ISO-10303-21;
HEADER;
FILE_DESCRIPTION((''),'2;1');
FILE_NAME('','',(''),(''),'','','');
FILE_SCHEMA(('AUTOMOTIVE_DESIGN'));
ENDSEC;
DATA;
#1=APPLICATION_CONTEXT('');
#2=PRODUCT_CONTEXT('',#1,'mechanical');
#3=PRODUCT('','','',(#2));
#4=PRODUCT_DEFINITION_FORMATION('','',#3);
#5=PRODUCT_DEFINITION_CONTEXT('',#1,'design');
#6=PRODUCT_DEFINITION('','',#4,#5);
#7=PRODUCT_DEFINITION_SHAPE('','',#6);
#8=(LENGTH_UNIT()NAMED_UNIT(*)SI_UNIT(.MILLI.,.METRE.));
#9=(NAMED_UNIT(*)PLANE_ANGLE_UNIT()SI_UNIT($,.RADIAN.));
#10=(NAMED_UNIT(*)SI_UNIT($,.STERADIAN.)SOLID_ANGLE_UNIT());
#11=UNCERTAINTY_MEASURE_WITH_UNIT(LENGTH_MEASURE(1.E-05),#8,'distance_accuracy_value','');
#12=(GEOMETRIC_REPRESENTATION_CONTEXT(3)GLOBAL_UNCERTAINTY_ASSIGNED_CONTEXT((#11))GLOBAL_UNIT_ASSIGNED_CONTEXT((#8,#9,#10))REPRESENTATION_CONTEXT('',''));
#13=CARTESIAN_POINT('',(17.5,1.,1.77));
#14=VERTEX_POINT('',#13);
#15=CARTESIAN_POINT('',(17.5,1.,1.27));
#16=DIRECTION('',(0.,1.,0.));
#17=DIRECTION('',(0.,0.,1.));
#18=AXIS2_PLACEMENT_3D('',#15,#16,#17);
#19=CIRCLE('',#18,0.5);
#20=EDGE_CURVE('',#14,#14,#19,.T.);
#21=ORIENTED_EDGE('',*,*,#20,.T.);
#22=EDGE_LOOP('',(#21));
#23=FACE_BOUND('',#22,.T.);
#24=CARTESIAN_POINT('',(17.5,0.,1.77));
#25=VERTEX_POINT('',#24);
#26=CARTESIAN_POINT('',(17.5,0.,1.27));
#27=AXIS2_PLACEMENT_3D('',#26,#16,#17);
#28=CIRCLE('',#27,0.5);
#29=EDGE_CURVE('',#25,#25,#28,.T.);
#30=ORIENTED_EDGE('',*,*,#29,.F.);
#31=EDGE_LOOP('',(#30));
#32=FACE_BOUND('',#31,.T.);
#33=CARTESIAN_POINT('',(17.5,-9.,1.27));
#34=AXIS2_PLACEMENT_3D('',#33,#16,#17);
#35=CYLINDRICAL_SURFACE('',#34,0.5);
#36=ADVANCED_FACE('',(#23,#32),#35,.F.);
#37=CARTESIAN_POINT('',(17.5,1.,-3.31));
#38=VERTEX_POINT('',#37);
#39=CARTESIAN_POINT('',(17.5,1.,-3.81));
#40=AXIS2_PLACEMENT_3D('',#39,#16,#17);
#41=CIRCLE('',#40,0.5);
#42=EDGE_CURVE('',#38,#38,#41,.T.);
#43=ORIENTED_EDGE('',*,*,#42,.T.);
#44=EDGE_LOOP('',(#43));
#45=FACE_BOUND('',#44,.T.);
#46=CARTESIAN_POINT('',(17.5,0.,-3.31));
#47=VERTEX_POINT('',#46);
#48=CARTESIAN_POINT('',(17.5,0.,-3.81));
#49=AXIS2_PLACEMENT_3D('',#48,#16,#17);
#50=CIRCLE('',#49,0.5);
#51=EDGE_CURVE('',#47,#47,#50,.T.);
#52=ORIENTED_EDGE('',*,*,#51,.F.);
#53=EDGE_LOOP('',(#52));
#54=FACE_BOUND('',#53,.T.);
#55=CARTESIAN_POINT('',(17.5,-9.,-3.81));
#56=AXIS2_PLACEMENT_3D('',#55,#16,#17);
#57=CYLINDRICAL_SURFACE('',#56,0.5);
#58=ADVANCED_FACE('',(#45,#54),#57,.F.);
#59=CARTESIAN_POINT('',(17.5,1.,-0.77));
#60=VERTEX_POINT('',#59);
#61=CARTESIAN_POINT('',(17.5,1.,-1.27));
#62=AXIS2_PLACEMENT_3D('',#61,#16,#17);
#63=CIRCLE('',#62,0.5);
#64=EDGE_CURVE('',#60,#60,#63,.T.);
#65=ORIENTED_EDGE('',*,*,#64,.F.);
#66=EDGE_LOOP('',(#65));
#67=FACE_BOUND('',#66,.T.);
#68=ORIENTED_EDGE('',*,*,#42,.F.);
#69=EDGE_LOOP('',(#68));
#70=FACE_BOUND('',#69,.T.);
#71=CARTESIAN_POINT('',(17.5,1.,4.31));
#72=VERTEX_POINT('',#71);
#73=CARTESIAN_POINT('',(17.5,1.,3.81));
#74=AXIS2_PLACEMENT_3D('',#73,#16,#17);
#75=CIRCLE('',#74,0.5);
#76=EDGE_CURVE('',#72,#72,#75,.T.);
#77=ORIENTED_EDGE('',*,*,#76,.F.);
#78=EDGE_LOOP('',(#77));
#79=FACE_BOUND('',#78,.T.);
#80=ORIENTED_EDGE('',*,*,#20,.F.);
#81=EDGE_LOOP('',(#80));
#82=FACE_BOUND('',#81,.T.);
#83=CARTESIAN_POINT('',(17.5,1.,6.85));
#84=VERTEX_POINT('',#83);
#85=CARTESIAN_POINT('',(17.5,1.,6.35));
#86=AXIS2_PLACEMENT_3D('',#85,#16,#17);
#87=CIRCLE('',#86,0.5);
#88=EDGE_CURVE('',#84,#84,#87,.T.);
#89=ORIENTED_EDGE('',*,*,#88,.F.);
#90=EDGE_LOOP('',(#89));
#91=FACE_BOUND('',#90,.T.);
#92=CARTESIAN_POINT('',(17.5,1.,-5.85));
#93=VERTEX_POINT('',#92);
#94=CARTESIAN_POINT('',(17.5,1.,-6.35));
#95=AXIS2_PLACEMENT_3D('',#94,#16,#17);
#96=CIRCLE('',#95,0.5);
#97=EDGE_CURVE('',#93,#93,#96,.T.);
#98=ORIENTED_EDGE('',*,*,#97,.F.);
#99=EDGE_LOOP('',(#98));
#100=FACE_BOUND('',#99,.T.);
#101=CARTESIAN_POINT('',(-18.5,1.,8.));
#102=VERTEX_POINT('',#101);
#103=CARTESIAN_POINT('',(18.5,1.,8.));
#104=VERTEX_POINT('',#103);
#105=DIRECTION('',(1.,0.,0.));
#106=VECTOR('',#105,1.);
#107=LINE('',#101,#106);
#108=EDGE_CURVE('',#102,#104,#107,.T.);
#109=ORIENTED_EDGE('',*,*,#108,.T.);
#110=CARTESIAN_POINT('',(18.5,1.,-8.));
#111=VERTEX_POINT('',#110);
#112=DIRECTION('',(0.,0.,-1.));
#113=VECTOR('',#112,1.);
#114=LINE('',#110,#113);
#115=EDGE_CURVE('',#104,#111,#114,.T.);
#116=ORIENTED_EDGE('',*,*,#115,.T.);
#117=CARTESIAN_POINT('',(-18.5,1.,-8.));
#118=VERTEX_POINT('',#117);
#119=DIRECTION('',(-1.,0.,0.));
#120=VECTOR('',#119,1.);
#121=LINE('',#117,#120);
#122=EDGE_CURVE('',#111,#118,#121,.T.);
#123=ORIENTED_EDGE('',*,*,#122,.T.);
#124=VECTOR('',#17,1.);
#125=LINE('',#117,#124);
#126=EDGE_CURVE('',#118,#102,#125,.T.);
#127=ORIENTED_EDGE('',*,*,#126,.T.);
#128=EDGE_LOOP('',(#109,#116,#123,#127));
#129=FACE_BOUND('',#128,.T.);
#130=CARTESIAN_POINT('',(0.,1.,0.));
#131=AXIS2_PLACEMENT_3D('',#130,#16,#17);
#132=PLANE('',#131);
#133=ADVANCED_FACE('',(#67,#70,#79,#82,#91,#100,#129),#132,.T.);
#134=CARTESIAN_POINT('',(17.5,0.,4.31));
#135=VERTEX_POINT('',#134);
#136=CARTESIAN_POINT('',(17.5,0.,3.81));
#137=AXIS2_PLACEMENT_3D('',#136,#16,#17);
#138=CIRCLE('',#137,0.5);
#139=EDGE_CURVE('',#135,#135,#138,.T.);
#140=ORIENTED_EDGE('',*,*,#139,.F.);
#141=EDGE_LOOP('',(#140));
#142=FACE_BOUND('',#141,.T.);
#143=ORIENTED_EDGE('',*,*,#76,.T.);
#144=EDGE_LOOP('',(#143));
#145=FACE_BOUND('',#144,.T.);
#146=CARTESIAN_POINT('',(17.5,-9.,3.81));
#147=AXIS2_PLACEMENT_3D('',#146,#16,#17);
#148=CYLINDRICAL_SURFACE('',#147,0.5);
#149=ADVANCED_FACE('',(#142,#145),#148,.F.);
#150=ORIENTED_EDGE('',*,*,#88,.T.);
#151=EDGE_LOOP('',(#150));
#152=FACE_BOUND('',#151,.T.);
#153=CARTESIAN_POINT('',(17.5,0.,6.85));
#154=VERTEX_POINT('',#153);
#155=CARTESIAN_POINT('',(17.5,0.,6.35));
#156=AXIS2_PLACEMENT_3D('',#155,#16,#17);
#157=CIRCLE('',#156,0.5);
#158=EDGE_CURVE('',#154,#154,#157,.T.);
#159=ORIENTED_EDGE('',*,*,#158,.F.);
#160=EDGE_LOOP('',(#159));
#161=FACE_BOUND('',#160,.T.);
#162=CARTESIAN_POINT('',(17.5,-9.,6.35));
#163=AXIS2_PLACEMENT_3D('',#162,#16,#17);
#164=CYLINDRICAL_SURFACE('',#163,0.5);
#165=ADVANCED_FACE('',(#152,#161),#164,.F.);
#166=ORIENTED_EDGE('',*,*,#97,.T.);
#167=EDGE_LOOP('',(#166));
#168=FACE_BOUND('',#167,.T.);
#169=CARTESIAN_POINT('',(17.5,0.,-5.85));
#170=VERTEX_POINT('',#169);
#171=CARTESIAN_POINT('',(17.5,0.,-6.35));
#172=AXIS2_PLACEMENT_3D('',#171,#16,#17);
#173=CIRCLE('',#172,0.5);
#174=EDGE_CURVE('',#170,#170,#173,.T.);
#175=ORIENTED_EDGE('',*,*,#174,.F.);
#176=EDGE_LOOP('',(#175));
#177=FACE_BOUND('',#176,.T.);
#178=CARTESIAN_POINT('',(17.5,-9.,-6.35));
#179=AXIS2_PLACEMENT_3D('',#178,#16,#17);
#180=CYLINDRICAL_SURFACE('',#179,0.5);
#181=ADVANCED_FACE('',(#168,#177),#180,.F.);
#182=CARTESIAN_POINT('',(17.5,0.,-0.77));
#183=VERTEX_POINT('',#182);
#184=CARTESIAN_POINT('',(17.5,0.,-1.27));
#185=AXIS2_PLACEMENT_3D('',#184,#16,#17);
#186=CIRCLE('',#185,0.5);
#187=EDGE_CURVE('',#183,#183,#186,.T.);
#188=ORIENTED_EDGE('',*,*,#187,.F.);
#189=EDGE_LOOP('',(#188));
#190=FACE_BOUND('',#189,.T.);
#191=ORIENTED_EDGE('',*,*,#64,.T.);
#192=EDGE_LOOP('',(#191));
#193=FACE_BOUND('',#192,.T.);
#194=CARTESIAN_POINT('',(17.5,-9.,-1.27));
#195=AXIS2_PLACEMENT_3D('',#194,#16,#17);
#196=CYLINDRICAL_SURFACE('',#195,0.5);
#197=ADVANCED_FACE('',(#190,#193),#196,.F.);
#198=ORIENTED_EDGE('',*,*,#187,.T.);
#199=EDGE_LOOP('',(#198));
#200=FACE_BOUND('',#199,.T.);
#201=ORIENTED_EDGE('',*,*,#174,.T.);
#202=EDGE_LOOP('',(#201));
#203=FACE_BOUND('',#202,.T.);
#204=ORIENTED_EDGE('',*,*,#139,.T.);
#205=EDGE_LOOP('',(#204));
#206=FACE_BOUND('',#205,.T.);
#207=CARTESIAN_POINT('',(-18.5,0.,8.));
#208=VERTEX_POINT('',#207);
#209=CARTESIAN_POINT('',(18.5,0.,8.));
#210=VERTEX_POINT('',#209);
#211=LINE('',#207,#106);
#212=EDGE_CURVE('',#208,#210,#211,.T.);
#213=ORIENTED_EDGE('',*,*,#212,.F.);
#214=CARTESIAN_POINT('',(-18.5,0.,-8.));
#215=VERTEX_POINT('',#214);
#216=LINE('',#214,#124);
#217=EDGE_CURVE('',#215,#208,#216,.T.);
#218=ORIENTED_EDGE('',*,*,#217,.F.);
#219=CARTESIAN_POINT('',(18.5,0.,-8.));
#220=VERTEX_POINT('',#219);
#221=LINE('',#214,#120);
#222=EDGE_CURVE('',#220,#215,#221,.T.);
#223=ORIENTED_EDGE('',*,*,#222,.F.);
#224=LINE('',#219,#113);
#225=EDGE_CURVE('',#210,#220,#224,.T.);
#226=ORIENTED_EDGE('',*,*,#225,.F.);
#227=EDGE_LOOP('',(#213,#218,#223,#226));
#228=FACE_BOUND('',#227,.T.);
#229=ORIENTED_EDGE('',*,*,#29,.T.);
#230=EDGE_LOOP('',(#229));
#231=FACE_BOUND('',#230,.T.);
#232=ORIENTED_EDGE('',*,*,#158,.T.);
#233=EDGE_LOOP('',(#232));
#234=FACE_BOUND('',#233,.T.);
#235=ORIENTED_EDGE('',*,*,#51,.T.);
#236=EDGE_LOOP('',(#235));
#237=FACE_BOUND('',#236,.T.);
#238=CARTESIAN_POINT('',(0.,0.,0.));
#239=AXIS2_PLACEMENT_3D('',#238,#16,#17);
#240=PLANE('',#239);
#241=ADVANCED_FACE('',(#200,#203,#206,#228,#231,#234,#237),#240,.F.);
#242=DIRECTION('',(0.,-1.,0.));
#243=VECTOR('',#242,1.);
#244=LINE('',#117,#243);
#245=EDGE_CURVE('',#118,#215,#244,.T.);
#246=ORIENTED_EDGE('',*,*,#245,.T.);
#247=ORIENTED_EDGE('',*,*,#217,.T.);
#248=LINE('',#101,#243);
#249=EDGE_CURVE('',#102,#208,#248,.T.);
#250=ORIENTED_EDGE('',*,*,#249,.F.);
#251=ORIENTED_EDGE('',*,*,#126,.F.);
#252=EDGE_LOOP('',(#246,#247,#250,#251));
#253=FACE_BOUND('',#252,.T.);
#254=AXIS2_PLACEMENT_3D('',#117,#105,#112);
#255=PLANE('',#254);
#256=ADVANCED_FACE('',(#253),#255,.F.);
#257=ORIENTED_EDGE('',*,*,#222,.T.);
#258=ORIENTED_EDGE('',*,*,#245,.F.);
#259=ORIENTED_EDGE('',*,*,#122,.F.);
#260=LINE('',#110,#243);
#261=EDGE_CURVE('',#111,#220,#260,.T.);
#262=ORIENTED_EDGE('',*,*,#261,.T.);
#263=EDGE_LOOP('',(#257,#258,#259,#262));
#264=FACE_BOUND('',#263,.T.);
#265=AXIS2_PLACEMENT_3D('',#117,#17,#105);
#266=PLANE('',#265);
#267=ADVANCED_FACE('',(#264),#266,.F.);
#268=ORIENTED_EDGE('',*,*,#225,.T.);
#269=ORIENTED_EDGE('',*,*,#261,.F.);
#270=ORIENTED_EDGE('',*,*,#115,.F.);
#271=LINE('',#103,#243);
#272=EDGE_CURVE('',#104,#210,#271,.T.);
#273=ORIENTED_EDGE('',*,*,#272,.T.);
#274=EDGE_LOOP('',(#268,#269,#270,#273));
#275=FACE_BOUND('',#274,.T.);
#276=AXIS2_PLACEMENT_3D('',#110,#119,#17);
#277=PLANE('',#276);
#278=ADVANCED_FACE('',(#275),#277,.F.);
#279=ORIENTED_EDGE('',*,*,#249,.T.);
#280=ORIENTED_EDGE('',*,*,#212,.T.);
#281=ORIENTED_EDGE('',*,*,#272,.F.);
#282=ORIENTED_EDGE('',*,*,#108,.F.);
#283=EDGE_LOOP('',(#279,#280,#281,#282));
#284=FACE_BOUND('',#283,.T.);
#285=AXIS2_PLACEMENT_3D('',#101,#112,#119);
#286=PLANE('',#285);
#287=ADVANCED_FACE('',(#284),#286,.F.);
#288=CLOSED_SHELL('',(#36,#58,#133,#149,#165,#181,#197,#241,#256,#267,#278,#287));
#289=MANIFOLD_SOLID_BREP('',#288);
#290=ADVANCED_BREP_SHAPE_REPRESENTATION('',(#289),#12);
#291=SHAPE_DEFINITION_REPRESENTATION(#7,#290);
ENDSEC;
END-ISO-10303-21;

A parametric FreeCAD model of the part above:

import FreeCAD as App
import Part
import Sketcher
from FreeCAD import Vector
Q = App.Units.Quantity


def add_polygon(sketch, points):
    """Adds a closed chain of lines whose ends are joined by coincident constraints."""
    first, n = sketch.GeometryCount, len(points)
    for a, b in zip(points, points[1:] + points[:1]):
        sketch.addGeometry(Part.LineSegment(App.Vector(*a, 0), App.Vector(*b, 0)), False)
    for i in range(n):
        sketch.addConstraint(Sketcher.Constraint("Coincident", first + i, 2, first + (i + 1) % n, 1))

doc = App.newDocument("Part")
body = doc.addObject("PartDesign::Body", "Body")

# Sketch on XZ plane
sketch1 = body.newObject("Sketcher::SketchObject", "Sketch")
sketch1.AttachmentSupport = (doc.getObject("XZ_Plane"), [""])
sketch1.MapMode = "FlatFace"
add_polygon(sketch1, [(-18.5, -8), (-18.5, 8), (18.5, 8), (18.5, -8)])  # lines 0-3
sketch1.addConstraint([
    Sketcher.Constraint("Vertical", 0),
    Sketcher.Constraint("Horizontal", 1),
    Sketcher.Constraint("Vertical", 2),
    Sketcher.Constraint("Horizontal", 3),
    Sketcher.Constraint("Symmetric", 0, 2, 2, 2, -1, 1),
    Sketcher.Constraint("DistanceX", 1, 1, 1, 2, Q("37 mm")),
    Sketcher.Constraint("DistanceY", 0, 1, 0, 2, Q("16 mm")),
])
pad1 = body.newObject("PartDesign::Pad", "Pad")
pad1.Profile = sketch1
pad1.Length = 1
pad1.Reversed = True

# Sketch on XZ plane
sketch2 = body.newObject("Sketcher::SketchObject", "Sketch001")
sketch2.AttachmentSupport = (doc.getObject("XZ_Plane"), [""])
sketch2.MapMode = "FlatFace"
sketch2.AttachmentOffset = App.Placement(Vector(0, 0, -1), App.Rotation())
sketch2.addGeometry([
    Part.Circle(Vector(17.5, 6.35, 0), Vector(0, 0, 1), 0.5),  # 0
    Part.Circle(Vector(17.5, 3.81, 0), Vector(0, 0, 1), 0.5),  # 1
    Part.Circle(Vector(17.5, 1.27, 0), Vector(0, 0, 1), 0.5),  # 2
    Part.Circle(Vector(17.5, -1.27, 0), Vector(0, 0, 1), 0.5),  # 3
    Part.Circle(Vector(17.5, -3.81, 0), Vector(0, 0, 1), 0.5),  # 4
    Part.Circle(Vector(17.5, -6.35, 0), Vector(0, 0, 1), 0.5),  # 5
], False)
sketch2.addConstraint([
    Sketcher.Constraint("Equal", 0, 1),
    Sketcher.Constraint("Equal", 1, 2),
    Sketcher.Constraint("Equal", 2, 3),
    Sketcher.Constraint("Equal", 3, 4),
    Sketcher.Constraint("Equal", 4, 5),
    Sketcher.Constraint("Symmetric", 2, 3, 3, 3, -1),
    Sketcher.Constraint("Symmetric", 1, 3, 4, 3, -1),
    Sketcher.Constraint("Symmetric", 0, 3, 5, 3, -1),
    Sketcher.Constraint("Vertical", 0, 3, 1, 3),
    Sketcher.Constraint("Vertical", 1, 3, 2, 3),
    Sketcher.Constraint("Diameter", 0, Q("1 mm")),
    Sketcher.Constraint("DistanceX", -1, 1, 0, 3, Q("17.5 mm")),
    Sketcher.Constraint("DistanceY", 5, 3, 0, 3, Q("12.7 mm")),
    Sketcher.Constraint("DistanceY", -1, 1, 1, 3, Q("3.81 mm")),
    Sketcher.Constraint("DistanceY", -1, 1, 2, 3, Q("1.27 mm")),
])
pocket1 = body.newObject("PartDesign::Pocket", "Pocket")
pocket1.Profile = sketch2
pocket1.Length = 10
pocket1.Reversed = True

doc.recompute()
